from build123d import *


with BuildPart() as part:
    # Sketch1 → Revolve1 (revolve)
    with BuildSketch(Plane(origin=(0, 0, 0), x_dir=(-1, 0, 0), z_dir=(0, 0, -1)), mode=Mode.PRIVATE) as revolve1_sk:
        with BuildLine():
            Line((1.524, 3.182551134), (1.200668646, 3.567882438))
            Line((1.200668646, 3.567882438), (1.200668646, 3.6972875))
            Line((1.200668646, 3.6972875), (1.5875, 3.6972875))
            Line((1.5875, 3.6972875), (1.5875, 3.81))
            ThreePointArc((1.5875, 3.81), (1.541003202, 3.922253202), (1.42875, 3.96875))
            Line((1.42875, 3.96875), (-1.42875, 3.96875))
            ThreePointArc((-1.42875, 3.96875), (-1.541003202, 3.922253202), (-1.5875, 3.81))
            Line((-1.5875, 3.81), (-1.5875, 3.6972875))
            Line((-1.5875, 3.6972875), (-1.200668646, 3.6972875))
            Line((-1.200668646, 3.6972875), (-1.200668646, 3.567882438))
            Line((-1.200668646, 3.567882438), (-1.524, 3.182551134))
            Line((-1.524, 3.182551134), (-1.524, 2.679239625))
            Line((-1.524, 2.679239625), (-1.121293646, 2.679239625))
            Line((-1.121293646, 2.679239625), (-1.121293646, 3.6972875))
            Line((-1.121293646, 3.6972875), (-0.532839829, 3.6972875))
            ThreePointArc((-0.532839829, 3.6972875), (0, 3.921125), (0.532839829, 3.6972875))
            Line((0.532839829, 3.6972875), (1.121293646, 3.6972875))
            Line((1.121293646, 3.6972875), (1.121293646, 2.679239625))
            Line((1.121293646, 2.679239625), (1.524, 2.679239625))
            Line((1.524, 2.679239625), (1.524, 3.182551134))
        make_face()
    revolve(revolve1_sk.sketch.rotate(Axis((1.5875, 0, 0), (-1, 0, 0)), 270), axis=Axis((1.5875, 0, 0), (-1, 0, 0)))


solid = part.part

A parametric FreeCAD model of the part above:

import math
import FreeCAD as App
import Part
import Sketcher

V = App.Vector
Q = App.Units.Quantity

doc = App.newDocument("Part")
body = doc.addObject("PartDesign::Body", "Body")

# Sketch on XY plane
sketch1 = body.newObject("Sketcher::SketchObject", "Sketch")
sketch1.AttachmentSupport = (doc.getObject("XY_Plane"), [""])
sketch1.MapMode = "FlatFace"
sketch1.addGeometry([
    Part.LineSegment(V(-1.524, 3.182551, 0), V(-1.200669, 3.567882, 0)),  # 0
    Part.LineSegment(V(-1.200669, 3.567882, 0), V(-1.200669, 3.697287, 0)),  # 1
    Part.LineSegment(V(-1.200669, 3.697287, 0), V(-1.5875, 3.697287, 0)),  # 2
    Part.LineSegment(V(-1.5875, 3.697287, 0), V(-1.5875, 3.81, 0)),  # 3
    Part.ArcOfCircle(Part.Circle(V(-1.42875, 3.81, 0), V(0, 0, 1), 0.15875), math.radians(89.999999), math.radians(180.000001)),  # 4
    Part.LineSegment(V(-1.42875, 3.96875, 0), V(1.42875, 3.96875, 0)),  # 5
    Part.ArcOfCircle(Part.Circle(V(1.42875, 3.81, 0), V(0, 0, 1), 0.15875), math.radians(-0.000001), math.radians(90.000001)),  # 6
    Part.LineSegment(V(1.5875, 3.81, 0), V(1.5875, 3.697287, 0)),  # 7
    Part.LineSegment(V(1.5875, 3.697287, 0), V(1.200669, 3.697287, 0)),  # 8
    Part.LineSegment(V(1.200669, 3.697287, 0), V(1.200669, 3.567882, 0)),  # 9
    Part.LineSegment(V(1.200669, 3.567882, 0), V(1.524, 3.182551, 0)),  # 10
    Part.LineSegment(V(1.524, 3.182551, 0), V(1.524, 2.67924, 0)),  # 11
    Part.LineSegment(V(1.524, 2.67924, 0), V(1.121294, 2.67924, 0)),  # 12
    Part.LineSegment(V(1.121294, 2.67924, 0), V(1.121294, 3.697287, 0)),  # 13
    Part.LineSegment(V(1.121294, 3.697287, 0), V(0.53284, 3.697287, 0)),  # 14
    Part.ArcOfCircle(Part.Circle(V(0, 3.175, 0), V(0, 0, 1), 0.746125), math.radians(44.427004), math.radians(135.572996)),  # 15
    Part.LineSegment(V(-0.53284, 3.697287, 0), V(-1.121294, 3.697287, 0)),  # 16
    Part.LineSegment(V(-1.121294, 3.697287, 0), V(-1.121294, 2.67924, 0)),  # 17
    Part.LineSegment(V(-1.121294, 2.67924, 0), V(-1.524, 2.67924, 0)),  # 18
    Part.LineSegment(V(-1.524, 2.67924, 0), V(-1.524, 3.182551, 0)),  # 19
], False)
sketch1.addConstraint([
    Sketcher.Constraint("Coincident", 0, 2, 1, 1),
    Sketcher.Constraint("Coincident", 1, 2, 2, 1),
    Sketcher.Constraint("Coincident", 2, 2, 3, 1),
    Sketcher.Constraint("Tangent", 3, 2, 4, 2),
    Sketcher.Constraint("Tangent", 4, 1, 5, 1),
    Sketcher.Constraint("Tangent", 5, 2, 6, 2),
    Sketcher.Constraint("Tangent", 6, 1, 7, 1),
    Sketcher.Constraint("Coincident", 7, 2, 8, 1),
    Sketcher.Constraint("Coincident", 8, 2, 9, 1),
    Sketcher.Constraint("Coincident", 9, 2, 10, 1),
    Sketcher.Constraint("Coincident", 10, 2, 11, 1),
    Sketcher.Constraint("Coincident", 11, 2, 12, 1),
    Sketcher.Constraint("Coincident", 12, 2, 13, 1),
    Sketcher.Constraint("Coincident", 13, 2, 14, 1),
    Sketcher.Constraint("Coincident", 14, 2, 15, 1),
    Sketcher.Constraint("Coincident", 15, 2, 16, 1),
    Sketcher.Constraint("Coincident", 16, 2, 17, 1),
    Sketcher.Constraint("Coincident", 17, 2, 18, 1),
    Sketcher.Constraint("Coincident", 18, 2, 19, 1),
    Sketcher.Constraint("Coincident", 19, 2, 0, 1),
    Sketcher.Constraint("Vertical", 1),
    Sketcher.Constraint("Horizontal", 2),
    Sketcher.Constraint("Vertical", 3),
    Sketcher.Constraint("Horizontal", 5),
    Sketcher.Constraint("Vertical", 7),
    Sketcher.Constraint("Horizontal", 8),
    Sketcher.Constraint("Vertical", 9),
    Sketcher.Constraint("Vertical", 11),
    Sketcher.Constraint("Horizontal", 12),
    Sketcher.Constraint("Vertical", 13),
    Sketcher.Constraint("Horizontal", 14),
    Sketcher.Constraint("Horizontal", 16),
    Sketcher.Constraint("Vertical", 17),
    Sketcher.Constraint("Horizontal", 18),
    Sketcher.Constraint("Vertical", 19),
    Sketcher.Constraint("Equal", 4, 6),
    Sketcher.Constraint("Symmetric", 2, 2, 7, 2, -2),
    Sketcher.Constraint("Symmetric", 0, 2, 9, 2, -2),
    Sketcher.Constraint("Symmetric", 14, 2, 15, 2, -2),
    Sketcher.Constraint("Symmetric", 12, 2, 17, 2, -2),
    Sketcher.Constraint("Symmetric", 10, 2, 19, 2, -2),
    Sketcher.Constraint("Horizontal", 8, 2, 13, 2),
    Sketcher.Constraint("Angle", 0, Q("50 deg")),
    Sketcher.Constraint("DistanceY", -1, 1, 4, 3, Q("3.81 mm")),
    Sketcher.Constraint("Radius", 4, Q("0.15875 mm")),
    Sketcher.Constraint("DistanceX", 5, 1, 5, 2, Q("2.8575 mm")),
    Sketcher.Constraint("DistanceY", -1, 1, 15, 3, Q("3.175 mm")),
    Sketcher.Constraint("DistanceX", -1, 1, 10, 2, Q("1.524 mm")),
    Sketcher.Constraint("Radius", 15, Q("0.746125 mm")),
    Sketcher.Constraint("DistanceX", 2, 2, 2, 1, Q("0.386831 mm")),
    Sketcher.Constraint("DistanceY", 11, 2, 11, 1, Q("0.503312 mm")),
    Sketcher.Constraint("DistanceX", 12, 2, 12, 1, Q("0.402706 mm")),
    Sketcher.Constraint("DistanceX", 14, 2, 14, 1, Q("0.588454 mm")),
    Sketcher.Constraint("DistanceY", 1, 1, 1, 2, Q("0.129405 mm")),
])
revolution = body.newObject("PartDesign::Revolution", "Revolution")
revolution.Profile = sketch1
revolution.ReferenceAxis = (sketch1, ["H_Axis"])
revolution.Angle = 360

doc.recompute()
